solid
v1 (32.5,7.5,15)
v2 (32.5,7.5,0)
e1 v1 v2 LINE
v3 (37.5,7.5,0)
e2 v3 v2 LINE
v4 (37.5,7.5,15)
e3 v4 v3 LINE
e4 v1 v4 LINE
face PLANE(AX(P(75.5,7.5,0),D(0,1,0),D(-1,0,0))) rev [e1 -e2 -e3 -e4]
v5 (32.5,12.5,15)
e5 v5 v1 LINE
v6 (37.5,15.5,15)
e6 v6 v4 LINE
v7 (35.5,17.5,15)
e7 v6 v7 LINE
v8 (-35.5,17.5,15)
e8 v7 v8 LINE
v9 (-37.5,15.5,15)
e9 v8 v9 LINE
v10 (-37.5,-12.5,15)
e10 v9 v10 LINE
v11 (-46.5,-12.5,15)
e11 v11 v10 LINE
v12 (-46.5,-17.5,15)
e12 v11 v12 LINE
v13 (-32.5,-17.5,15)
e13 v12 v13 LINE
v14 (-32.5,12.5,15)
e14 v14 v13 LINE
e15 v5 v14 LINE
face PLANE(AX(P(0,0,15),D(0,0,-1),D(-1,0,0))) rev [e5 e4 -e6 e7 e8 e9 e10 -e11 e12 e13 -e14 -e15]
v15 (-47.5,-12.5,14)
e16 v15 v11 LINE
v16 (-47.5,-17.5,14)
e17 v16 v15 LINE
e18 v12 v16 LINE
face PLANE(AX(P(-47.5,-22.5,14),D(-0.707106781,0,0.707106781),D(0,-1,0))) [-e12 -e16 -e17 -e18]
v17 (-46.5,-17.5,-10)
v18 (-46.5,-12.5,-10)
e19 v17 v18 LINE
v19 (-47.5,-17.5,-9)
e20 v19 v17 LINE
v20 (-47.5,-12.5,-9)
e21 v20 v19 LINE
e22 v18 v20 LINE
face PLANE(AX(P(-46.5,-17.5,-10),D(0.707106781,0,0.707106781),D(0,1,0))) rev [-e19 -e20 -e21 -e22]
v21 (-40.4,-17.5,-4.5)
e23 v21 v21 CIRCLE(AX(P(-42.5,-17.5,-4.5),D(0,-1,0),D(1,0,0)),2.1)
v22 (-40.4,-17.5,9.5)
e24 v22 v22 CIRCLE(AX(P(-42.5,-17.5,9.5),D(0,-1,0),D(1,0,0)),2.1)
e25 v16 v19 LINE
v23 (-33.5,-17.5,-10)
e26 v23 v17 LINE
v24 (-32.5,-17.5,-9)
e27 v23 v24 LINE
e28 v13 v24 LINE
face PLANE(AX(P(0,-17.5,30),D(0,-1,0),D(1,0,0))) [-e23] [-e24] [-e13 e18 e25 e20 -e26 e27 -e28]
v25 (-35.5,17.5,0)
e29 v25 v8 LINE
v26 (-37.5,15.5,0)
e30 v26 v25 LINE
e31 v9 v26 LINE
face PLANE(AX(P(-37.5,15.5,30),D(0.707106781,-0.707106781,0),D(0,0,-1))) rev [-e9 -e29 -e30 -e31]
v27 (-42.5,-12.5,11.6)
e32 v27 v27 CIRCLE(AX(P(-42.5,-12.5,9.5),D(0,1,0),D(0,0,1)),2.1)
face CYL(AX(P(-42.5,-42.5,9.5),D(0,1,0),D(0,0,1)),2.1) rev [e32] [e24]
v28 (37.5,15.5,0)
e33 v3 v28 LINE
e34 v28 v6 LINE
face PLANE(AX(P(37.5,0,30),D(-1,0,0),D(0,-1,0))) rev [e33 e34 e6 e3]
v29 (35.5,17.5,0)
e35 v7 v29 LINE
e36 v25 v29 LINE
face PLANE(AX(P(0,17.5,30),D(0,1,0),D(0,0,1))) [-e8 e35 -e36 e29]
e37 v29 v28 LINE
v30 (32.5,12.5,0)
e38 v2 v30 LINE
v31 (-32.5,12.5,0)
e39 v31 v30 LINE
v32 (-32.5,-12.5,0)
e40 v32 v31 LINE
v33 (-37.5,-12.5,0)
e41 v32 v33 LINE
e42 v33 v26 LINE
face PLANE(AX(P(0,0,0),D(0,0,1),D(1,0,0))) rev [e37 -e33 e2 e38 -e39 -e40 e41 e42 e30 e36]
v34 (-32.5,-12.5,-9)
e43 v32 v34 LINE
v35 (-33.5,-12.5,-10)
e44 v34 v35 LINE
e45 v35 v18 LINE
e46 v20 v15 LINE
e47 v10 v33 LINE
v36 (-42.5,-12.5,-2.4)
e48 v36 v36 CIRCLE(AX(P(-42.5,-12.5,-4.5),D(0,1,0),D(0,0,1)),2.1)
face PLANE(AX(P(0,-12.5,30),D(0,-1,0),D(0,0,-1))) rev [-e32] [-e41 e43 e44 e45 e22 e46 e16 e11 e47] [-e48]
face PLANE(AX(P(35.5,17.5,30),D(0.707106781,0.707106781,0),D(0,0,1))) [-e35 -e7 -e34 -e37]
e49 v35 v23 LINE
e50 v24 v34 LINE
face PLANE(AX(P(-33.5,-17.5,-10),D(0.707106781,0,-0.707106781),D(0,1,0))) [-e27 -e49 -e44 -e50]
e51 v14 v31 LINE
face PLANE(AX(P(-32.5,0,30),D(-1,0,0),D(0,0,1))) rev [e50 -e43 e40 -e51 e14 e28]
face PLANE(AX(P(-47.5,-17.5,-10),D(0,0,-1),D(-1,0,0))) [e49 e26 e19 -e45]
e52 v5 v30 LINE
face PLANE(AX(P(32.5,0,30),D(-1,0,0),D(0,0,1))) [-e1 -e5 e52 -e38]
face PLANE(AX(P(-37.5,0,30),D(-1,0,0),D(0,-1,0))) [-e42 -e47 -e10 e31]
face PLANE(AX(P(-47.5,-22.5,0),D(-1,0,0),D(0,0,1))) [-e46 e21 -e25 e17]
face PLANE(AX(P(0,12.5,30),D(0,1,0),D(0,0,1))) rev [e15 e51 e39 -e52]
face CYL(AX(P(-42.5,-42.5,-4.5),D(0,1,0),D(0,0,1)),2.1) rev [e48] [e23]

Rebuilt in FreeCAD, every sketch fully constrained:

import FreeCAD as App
import Part
import Sketcher


def edges_at(feature, points):
    """Names of the edges that pass closest to the given points."""
    edges = feature.Shape.Edges
    near = lambda p: min(range(len(edges)), key=lambda i: edges[i].distToShape(Part.Vertex(*p))[0])
    return sorted({f"Edge{near(p) + 1}" for p in points})


def add_polygon(sketch, points):
    """Adds a closed chain of lines whose ends are joined by coincident constraints."""
    first, n = sketch.GeometryCount, len(points)
    for a, b in zip(points, points[1:] + points[:1]):
        sketch.addGeometry(Part.LineSegment(App.Vector(*a, 0), App.Vector(*b, 0)), False)
    for i in range(n):
        sketch.addConstraint(Sketcher.Constraint("Coincident", first + i, 2, first + (i + 1) % n, 1))

doc = App.newDocument("Part")
params = doc.addObject("Spreadsheet::Sheet", "Params")
for row, (alias, value) in enumerate([
    ("sketch1_width", "25 mm"),
    ("sketch1_width2", "65 mm"),
    ("sketch1_width3", "20 mm"),
    ("sketch1_height", "30 mm"),
    ("sketch1_height2", "5 mm"),
    ("pad1_length", "30 mm"),
    ("sketch2_width", "50 mm"),
    ("sketch2_height", "20 mm"),
    ("pocket1_length", "30 mm"),
    ("chamfer_size", "2 mm"),
    ("sketch3_diameter", "4.2 mm"),
    ("pocket2_length", "30 mm"),
    ("sketch4_width", "5 mm"),
    ("sketch4_height", "30 mm"),
    ("pad2_length", "5 mm"),
    ("pocket3_length", "15 mm"),
    ("sketch6_width", "20 mm"),
    ("sketch6_height", "15 mm"),
    ("sketch7_width", "71 mm"),
    ("sketch7_height", "15 mm"),
    ("pad4_length", "5 mm"),
    ("sketch8_width", "25 mm"),
    ("sketch8_height", "15 mm"),
    ("pocket4_length", "38 mm"),
    ("pocket4_length2", "27 mm"),
    ("sketch9_diameter", "4.2 mm"),
    ("pocket5_length", "27 mm"),
    ("sketch10_diameter", "4.2 mm"),
    ("pad5_length", "5 mm"),
    ("sketch11_diameter", "4.2 mm"),
    ("pocket6_length", "5 mm"),
    ("sketch12_width", "5 mm"),
    ("sketch12_height", "15 mm"),
    ("pocket7_length", "10 mm"),
    ("sketch13_width", "5 mm"),
    ("sketch13_height", "15 mm"),
    ("pocket8_length", "10 mm"),
    ("sketch14_width", "10 mm"),
    ("sketch14_height", "25 mm"),
    ("pad6_length", "5 mm"),
    ("sketch15_diameter", "4.2 mm"),
    ("pocket9_length", "30 mm"),
    ("sketch16_width", "5 mm"),
    ("sketch16_height", "10 mm"),
    ("pad7_length", "5 mm"),
    ("chamfer2_size", "1 mm"),
    ("chamfer3_size", "1 mm"),
], start=1):
    params.set(f"A{row}", alias)
    params.set(f"B{row}", "=" + value)
    params.setAlias(f"B{row}", alias)

body = doc.addObject("PartDesign::Body", "Body")

sketch1 = doc.addObject("Sketcher::SketchObject", "Sketch")
body.addObject(sketch1)
sketch1.AttachmentSupport = (doc.XY_Plane, [""])
sketch1.MapMode = "FlatFace"
add_polygon(sketch1, [(-57.5, -17.5), (-32.5, -17.5), (-32.5, 12.5), (32.5, 12.5), (32.5, -17.5), (57.5, -17.5), (57.5, -12.5), (37.5, -12.5), (37.5, 17.5), (-37.5, 17.5), (-37.5, -12.5), (-57.5, -12.5)])
sketch1.addConstraint([
    Sketcher.Constraint("Horizontal", 0),
    Sketcher.Constraint("Vertical", 1),
    Sketcher.Constraint("Horizontal", 2),
    Sketcher.Constraint("Vertical", 3),
    Sketcher.Constraint("Horizontal", 4),
    Sketcher.Constraint("Vertical", 5),
    Sketcher.Constraint("Horizontal", 6),
    Sketcher.Constraint("Vertical", 7),
    Sketcher.Constraint("Horizontal", 8),
    Sketcher.Constraint("Vertical", 9),
    Sketcher.Constraint("Horizontal", 10),
    Sketcher.Constraint("Vertical", 11),
    Sketcher.Constraint("Symmetric", 0, 2, 3, 2, -2),
    Sketcher.Constraint("Symmetric", 6, 2, 9, 2, -2),
    Sketcher.Constraint("Equal", 0, 4),
    Sketcher.Constraint("Equal", 3, 7),
    Sketcher.Constraint("DistanceX", 0, 1, 0, 2, 25.0),
    Sketcher.Constraint("DistanceX", 2, 1, 2, 2, 65.0),
    Sketcher.Constraint("DistanceX", 6, 2, 6, 1, 20.0),
    Sketcher.Constraint("DistanceY", 1, 1, 1, 2, 30.0),
    Sketcher.Constraint("DistanceY", 5, 1, 5, 2, 5.0),
    Sketcher.Constraint("DistanceY", 0, 2, -1, 1, 17.5),
])
sketch1.setExpression("Constraints[28]", "Params.sketch1_width")
sketch1.setExpression("Constraints[29]", "Params.sketch1_width2")
sketch1.setExpression("Constraints[30]", "Params.sketch1_width3")
sketch1.setExpression("Constraints[31]", "Params.sketch1_height")
sketch1.setExpression("Constraints[32]", "Params.sketch1_height2")
pad1 = doc.addObject("PartDesign::Pad", "Pad")
body.addObject(pad1)
pad1.Profile = sketch1
pad1.setExpression("Length", "Params.pad1_length")

sketch2 = doc.addObject("Sketcher::SketchObject", "Sketch001")
body.addObject(sketch2)
sketch2.AttachmentSupport = (doc.XZ_Plane, [""])
sketch2.MapMode = "FlatFace"
sketch2.AttachmentOffset = App.Placement(App.Vector(0, 0, -17.5), App.Rotation())
add_polygon(sketch2, [(-25, 5), (-25, 25), (25, 25), (25, 5)])
sketch2.addConstraint([
    Sketcher.Constraint("Vertical", 0),
    Sketcher.Constraint("Horizontal", 1),
    Sketcher.Constraint("Vertical", 2),
    Sketcher.Constraint("Horizontal", 3),
    Sketcher.Constraint("DistanceX", 1, 1, 1, 2, 50.0),
    Sketcher.Constraint("DistanceY", 0, 1, 0, 2, 20.0),
    Sketcher.Constraint("DistanceX", 0, 2, -1, 1, 25.0),
    Sketcher.Constraint("DistanceY", -1, 1, 0, 2, 25.0),
])
sketch2.setExpression("Constraints[8]", "Params.sketch2_width")
sketch2.setExpression("Constraints[9]", "Params.sketch2_height")
pocket1 = doc.addObject("PartDesign::Pocket", "Pocket")
body.addObject(pocket1)
pocket1.Profile = sketch2
pocket1.setExpression("Length", "Params.pocket1_length")
pocket1.Reversed = True
doc.recompute()

chamfer = doc.addObject("PartDesign::Chamfer", "Chamfer")
body.addObject(chamfer)
chamfer.Base = (pocket1, edges_at(pocket1, [(-37.5, 17.5, 15), (37.5, 17.5, 15)]))
chamfer.setExpression("Size", "Params.chamfer_size")

sketch3 = doc.addObject("Sketcher::SketchObject", "Sketch002")
body.addObject(sketch3)
sketch3.AttachmentSupport = (doc.XZ_Plane, [""])
sketch3.MapMode = "FlatFace"
sketch3.AttachmentOffset = App.Placement(App.Vector(0, 0, 12.5), App.Rotation())
sketch3.addGeometry([
    Part.Circle(App.Vector(-47.5, 15, 0), App.Vector(0, 0, 1), 2.1),
    Part.Circle(App.Vector(47.5, 15, 0), App.Vector(0, 0, 1), 2.1),
], False)
sketch3.addConstraint([
    Sketcher.Constraint("Equal", 0, 1),
    Sketcher.Constraint("Symmetric", 0, 3, 1, 3, -2),
    Sketcher.Constraint("Diameter", 0, 4.2),
    Sketcher.Constraint("DistanceY", -1, 1, 0, 3, 15.0),
    Sketcher.Constraint("DistanceX", 0, 3, 1, 3, 95.0),
])
sketch3.setExpression("Constraints[2]", "Params.sketch3_diameter")
pocket2 = doc.addObject("PartDesign::Pocket", "Pocket001")
body.addObject(pocket2)
pocket2.Profile = sketch3
pocket2.setExpression("Length", "Params.pocket2_length")
pocket2.Reversed = True

sketch4 = doc.addObject("Sketcher::SketchObject", "Sketch003")
body.addObject(sketch4)
sketch4.AttachmentSupport = (doc.XZ_Plane, [""])
sketch4.MapMode = "FlatFace"
sketch4.AttachmentOffset = App.Placement(App.Vector(0, 0, -17.5), App.Rotation())
add_polygon(sketch4, [(-2.5, 0), (-2.5, 30), (2.5, 30), (2.5, 0)])
sketch4.addConstraint([
    Sketcher.Constraint("Vertical", 0),
    Sketcher.Constraint("Horizontal", 1),
    Sketcher.Constraint("Vertical", 2),
    Sketcher.Constraint("Horizontal", 3),
    Sketcher.Constraint("Symmetric", 2, 2, 3, 2, -1, 1),
    Sketcher.Constraint("DistanceX", 1, 1, 1, 2, 5.0),
    Sketcher.Constraint("DistanceY", 0, 1, 0, 2, 30.0),
])
sketch4.setExpression("Constraints[9]", "Params.sketch4_width")
sketch4.setExpression("Constraints[10]", "Params.sketch4_height")
pad2 = doc.addObject("PartDesign::Pad", "Pad001")
body.addObject(pad2)
pad2.Profile = sketch4
pad2.setExpression("Length", "Params.pad2_length")

sketch5 = doc.addObject("Sketcher::SketchObject", "Sketch004")
body.addObject(sketch5)
sketch5.AttachmentSupport = (doc.XY_Plane, [""])
sketch5.MapMode = "FlatFace"
sketch5.AttachmentOffset = App.Placement(App.Vector(0, 0, 30), App.Rotation())
add_polygon(sketch5, [(-63.094721, 24.823122), (-63.094721, -24.823122), (63.094721, -24.823122), (63.094721, 24.823122)])
sketch5.addConstraint([
    Sketcher.Constraint("Vertical", 0),
    Sketcher.Constraint("Horizontal", 1),
    Sketcher.Constraint("Vertical", 2),
    Sketcher.Constraint("Horizontal", 3),
    Sketcher.Constraint("Symmetric", 0, 2, 2, 2, -1, 1),
    Sketcher.Constraint("DistanceX", 1, 1, 1, 2, 126.189443),
    Sketcher.Constraint("DistanceY", 0, 2, 0, 1, 49.646245),
])
pocket3 = doc.addObject("PartDesign::Pocket", "Pocket002")
body.addObject(pocket3)
pocket3.Profile = sketch5
pocket3.setExpression("Length", "Params.pocket3_length")

sketch6 = doc.addObject("Sketcher::SketchObject", "Sketch005")
body.addObject(sketch6)
sketch6.AttachmentSupport = (doc.XZ_Plane, [""])
sketch6.MapMode = "FlatFace"
sketch6.AttachmentOffset = App.Placement(App.Vector(0, 0, 12.5), App.Rotation())
add_polygon(sketch6, [(-57.5, 0), (-57.5, 15), (-37.5, 15), (-37.5, 0)])
sketch6.addConstraint([
    Sketcher.Constraint("Vertical", 0),
    Sketcher.Constraint("Horizontal", 1),
    Sketcher.Constraint("Vertical", 2),
    Sketcher.Constraint("Horizontal", 3),
    Sketcher.Constraint("PointOnObject", 2, 2, -1),
    Sketcher.Constraint("DistanceX", 1, 1, 1, 2, 20.0),
    Sketcher.Constraint("DistanceY", 0, 1, 0, 2, 15.0),
    Sketcher.Constraint("DistanceX", 0, 2, -1, 1, 57.5),
])
sketch6.setExpression("Constraints[9]", "Params.sketch6_width")
sketch6.setExpression("Constraints[10]", "Params.sketch6_height")
pad3 = doc.addObject("PartDesign::Pad", "Pad002")
body.addObject(pad3)
pad3.Profile = sketch6
pad3.Type = "UpToLast"

sketch7 = doc.addObject("Sketcher::SketchObject", "Sketch006")
body.addObject(sketch7)
sketch7.AttachmentSupport = (doc.XZ_Plane, [""])
sketch7.MapMode = "FlatFace"
sketch7.AttachmentOffset = App.Placement(App.Vector(0, 0, -17.5), App.Rotation())
add_polygon(sketch7, [(-35.5, 0), (-35.5, 15), (35.5, 15), (35.5, 0)])
sketch7.addConstraint([
    Sketcher.Constraint("Vertical", 0),
    Sketcher.Constraint("Horizontal", 1),
    Sketcher.Constraint("Vertical", 2),
    Sketcher.Constraint("Horizontal", 3),
    Sketcher.Constraint("Symmetric", 2, 2, 3, 2, -1, 1),
    Sketcher.Constraint("DistanceX", 1, 1, 1, 2, 71.0),
    Sketcher.Constraint("DistanceY", 0, 1, 0, 2, 15.0),
])
sketch7.setExpression("Constraints[9]", "Params.sketch7_width")
sketch7.setExpression("Constraints[10]", "Params.sketch7_height")
pad4 = doc.addObject("PartDesign::Pad", "Pad003")
body.addObject(pad4)
pad4.Profile = sketch7
pad4.setExpression("Length", "Params.pad4_length")

sketch8 = doc.addObject("Sketcher::SketchObject", "Sketch007")
body.addObject(sketch8)
sketch8.AttachmentSupport = (doc.YZ_Plane, [""])
sketch8.MapMode = "FlatFace"
sketch8.AttachmentOffset = App.Placement(App.Vector(0, 0, 37.5), App.Rotation())
add_polygon(sketch8, [(7.5, 15), (-17.5, 15), (-17.5, 0), (7.5, 0)])
sketch8.addConstraint([
    Sketcher.Constraint("Horizontal", 0),
    Sketcher.Constraint("Vertical", 1),
    Sketcher.Constraint("Horizontal", 2),
    Sketcher.Constraint("Vertical", 3),
    Sketcher.Constraint("PointOnObject", 1, 2, -1),
    Sketcher.Constraint("DistanceX", 0, 2, 0, 1, 25.0),
    Sketcher.Constraint("DistanceY", 1, 2, 1, 1, 15.0),
    Sketcher.Constraint("DistanceX", 0, 2, -1, 1, 17.5),
])
sketch8.setExpression("Constraints[9]", "Params.sketch8_width")
sketch8.setExpression("Constraints[10]", "Params.sketch8_height")
pocket4 = doc.addObject("PartDesign::Pocket", "Pocket003")
body.addObject(pocket4)
pocket4.Profile = sketch8
pocket4.Type = "TwoLengths"
pocket4.setExpression("Length", "Params.pocket4_length")
pocket4.setExpression("Length2", "Params.pocket4_length2")
pocket4.Reversed = True

sketch9 = doc.addObject("Sketcher::SketchObject", "Sketch008")
body.addObject(sketch9)
sketch9.AttachmentSupport = (doc.XZ_Plane, [""])
sketch9.MapMode = "FlatFace"
sketch9.AttachmentOffset = App.Placement(App.Vector(0, 0, 12.5), App.Rotation())
sketch9.addGeometry(Part.Circle(App.Vector(-47.5, 7.5, 0), App.Vector(0, 0, 1), 2.1), False)
sketch9.addConstraint([
    Sketcher.Constraint("Diameter", 0, 4.2),
    Sketcher.Constraint("DistanceX", 0, 3, -1, 1, 47.5),
    Sketcher.Constraint("DistanceY", -1, 1, 0, 3, 7.5),
])
sketch9.setExpression("Constraints[0]", "Params.sketch9_diameter")
pocket5 = doc.addObject("PartDesign::Pocket", "Pocket004")
body.addObject(pocket5)
pocket5.Profile = sketch9
pocket5.setExpression("Length", "Params.pocket5_length")
pocket5.Reversed = True

sketch10 = doc.addObject("Sketcher::SketchObject", "Sketch009")
body.addObject(sketch10)
sketch10.AttachmentSupport = (doc.XZ_Plane, [""])
sketch10.MapMode = "FlatFace"
sketch10.AttachmentOffset = App.Placement(App.Vector(0, 0, 17.5), App.Rotation())
sketch10.addGeometry(Part.Circle(App.Vector(-47.5, 7.5, 0), App.Vector(0, 0, 1), 2.1), False)
sketch10.addConstraint([
    Sketcher.Constraint("Diameter", 0, 4.2),
    Sketcher.Constraint("DistanceX", 0, 3, -1, 1, 47.5),
    Sketcher.Constraint("DistanceY", -1, 1, 0, 3, 7.5),
])
sketch10.setExpression("Constraints[0]", "Params.sketch10_diameter")
pad5 = doc.addObject("PartDesign::Pad", "Pad004")
body.addObject(pad5)
pad5.Profile = sketch10
pad5.setExpression("Length", "Params.pad5_length")
pad5.Reversed = True

sketch11 = doc.addObject("Sketcher::SketchObject", "Sketch010")
body.addObject(sketch11)
sketch11.AttachmentSupport = (doc.XZ_Plane, [""])
sketch11.MapMode = "FlatFace"
sketch11.AttachmentOffset = App.Placement(App.Vector(0, 0, 17.5), App.Rotation())
sketch11.addGeometry([
    Part.Circle(App.Vector(-42.5, 11, 0), App.Vector(0, 0, 1), 2.1),
    Part.Circle(App.Vector(-42.5, 4, 0), App.Vector(0, 0, 1), 2.1),
], False)
sketch11.addConstraint([
    Sketcher.Constraint("Equal", 0, 1),
    Sketcher.Constraint("Vertical", 0, 3, 1, 3),
    Sketcher.Constraint("Diameter", 0, 4.2),
    Sketcher.Constraint("DistanceY", -1, 1, 0, 3, 11.0),
    Sketcher.Constraint("DistanceY", -1, 1, 1, 3, 4.0),
    Sketcher.Constraint("DistanceX", 0, 3, -1, 1, 42.5),
])
sketch11.setExpression("Constraints[2]", "Params.sketch11_diameter")
pocket6 = doc.addObject("PartDesign::Pocket", "Pocket005")
body.addObject(pocket6)
pocket6.Profile = sketch11
pocket6.setExpression("Length", "Params.pocket6_length")

sketch12 = doc.addObject("Sketcher::SketchObject", "Sketch011")
body.addObject(sketch12)
sketch12.AttachmentSupport = (doc.XZ_Plane, [""])
sketch12.MapMode = "FlatFace"
sketch12.AttachmentOffset = App.Placement(App.Vector(0, 0, 17.5), App.Rotation())
add_polygon(sketch12, [(-52.5, 0), (-52.5, 15), (-57.5, 15), (-57.5, 0)])
sketch12.addConstraint([
    Sketcher.Constraint("Vertical", 0),
    Sketcher.Constraint("Horizontal", 1),
    Sketcher.Constraint("Vertical", 2),
    Sketcher.Constraint("Horizontal", 3),
    Sketcher.Constraint("PointOnObject", 2, 2, -1),
    Sketcher.Constraint("DistanceX", 1, 2, 1, 1, 5.0),
    Sketcher.Constraint("DistanceY", 0, 1, 0, 2, 15.0),
    Sketcher.Constraint("DistanceX", 0, 2, -1, 1, 52.5),
])
sketch12.setExpression("Constraints[9]", "Params.sketch12_width")
sketch12.setExpression("Constraints[10]", "Params.sketch12_height")
pocket7 = doc.addObject("PartDesign::Pocket", "Pocket006")
body.addObject(pocket7)
pocket7.Profile = sketch12
pocket7.setExpression("Length", "Params.pocket7_length")

sketch13 = doc.addObject("Sketcher::SketchObject", "Sketch012")
body.addObject(sketch13)
sketch13.AttachmentSupport = (doc.XZ_Plane, [""])
sketch13.MapMode = "FlatFace"
sketch13.AttachmentOffset = App.Placement(App.Vector(0, 0, 12.5), App.Rotation())
add_polygon(sketch13, [(-52.5, 0), (-52.5, 15), (-47.5, 15), (-47.5, 0)])
sketch13.addConstraint([
    Sketcher.Constraint("Vertical", 0),
    Sketcher.Constraint("Horizontal", 1),
    Sketcher.Constraint("Vertical", 2),
    Sketcher.Constraint("Horizontal", 3),
    Sketcher.Constraint("PointOnObject", 2, 2, -1),
    Sketcher.Constraint("DistanceX", 1, 1, 1, 2, 5.0),
    Sketcher.Constraint("DistanceY", 0, 1, 0, 2, 15.0),
    Sketcher.Constraint("DistanceX", 0, 2, -1, 1, 52.5),
])
sketch13.setExpression("Constraints[9]", "Params.sketch13_width")
sketch13.setExpression("Constraints[10]", "Params.sketch13_height")
pocket8 = doc.addObject("PartDesign::Pocket", "Pocket007")
body.addObject(pocket8)
pocket8.Profile = sketch13
pocket8.setExpression("Length", "Params.pocket8_length")
pocket8.Reversed = True

sketch14 = doc.addObject("Sketcher::SketchObject", "Sketch013")
body.addObject(sketch14)
sketch14.AttachmentSupport = (doc.XZ_Plane, [""])
sketch14.MapMode = "FlatFace"
sketch14.AttachmentOffset = App.Placement(App.Vector(0, 0, 12.5), App.Rotation())
add_polygon(sketch14, [(-47.5, -10), (-47.5, 15), (-37.5, 15), (-37.5, -10)])
sketch14.addConstraint([
    Sketcher.Constraint("Vertical", 0),
    Sketcher.Constraint("Horizontal", 1),
    Sketcher.Constraint("Vertical", 2),
    Sketcher.Constraint("Horizontal", 3),
    Sketcher.Constraint("DistanceX", 1, 1, 1, 2, 10.0),
    Sketcher.Constraint("DistanceY", 0, 1, 0, 2, 25.0),
    Sketcher.Constraint("DistanceY", -1, 1, 0, 2, 15.0),
    Sketcher.Constraint("DistanceX", 0, 2, -1, 1, 47.5),
])
sketch14.setExpression("Constraints[8]", "Params.sketch14_width")
sketch14.setExpression("Constraints[9]", "Params.sketch14_height")
pad6 = doc.addObject("PartDesign::Pad", "Pad005")
body.addObject(pad6)
pad6.Profile = sketch14
pad6.setExpression("Length", "Params.pad6_length")

sketch15 = doc.addObject("Sketcher::SketchObject", "Sketch014")
body.addObject(sketch15)
sketch15.AttachmentSupport = (doc.XZ_Plane, [""])
sketch15.MapMode = "FlatFace"
sketch15.AttachmentOffset = App.Placement(App.Vector(0, 0, 12.5), App.Rotation())
sketch15.addGeometry([
    Part.Circle(App.Vector(-42.5, -4.5, 0), App.Vector(0, 0, 1), 2.1),
    Part.Circle(App.Vector(-42.5, 9.5, 0), App.Vector(0, 0, 1), 2.1),
], False)
sketch15.addConstraint([
    Sketcher.Constraint("Equal", 0, 1),
    Sketcher.Constraint("Vertical", 0, 3, 1, 3),
    Sketcher.Constraint("Diameter", 0, 4.2),
    Sketcher.Constraint("DistanceY", 0, 3, 1, 3, 14.0),
    Sketcher.Constraint("DistanceX", 0, 3, -1, 1, 42.5),
    Sketcher.Constraint("DistanceY", 0, 3, -1, 1, 4.5),
])
sketch15.setExpression("Constraints[2]", "Params.sketch15_diameter")
pocket9 = doc.addObject("PartDesign::Pocket", "Pocket008")
body.addObject(pocket9)
pocket9.Profile = sketch15
pocket9.setExpression("Length", "Params.pocket9_length")
pocket9.Reversed = True

sketch16 = doc.addObject("Sketcher::SketchObject", "Sketch015")
body.addObject(sketch16)
sketch16.AttachmentSupport = (doc.YZ_Plane, [""])
sketch16.MapMode = "FlatFace"
sketch16.AttachmentOffset = App.Placement(App.Vector(0, 0, -37.5), App.Rotation())
add_polygon(sketch16, [(-12.5, 0), (-17.5, 0), (-17.5, -10), (-12.5, -10)])
sketch16.addConstraint([
    Sketcher.Constraint("Horizontal", 0),
    Sketcher.Constraint("Vertical", 1),
    Sketcher.Constraint("Horizontal", 2),
    Sketcher.Constraint("Vertical", 3),
    Sketcher.Constraint("PointOnObject", 0, 2, -1),
    Sketcher.Constraint("DistanceX", 0, 2, 0, 1, 5.0),
    Sketcher.Constraint("DistanceY", 1, 2, 1, 1, 10.0),
    Sketcher.Constraint("DistanceX", 0, 2, -1, 1, 17.5),
])
sketch16.setExpression("Constraints[9]", "Params.sketch16_width")
sketch16.setExpression("Constraints[10]", "Params.sketch16_height")
pad7 = doc.addObject("PartDesign::Pad", "Pad006")
body.addObject(pad7)
pad7.Profile = sketch16
pad7.setExpression("Length", "Params.pad7_length")
doc.recompute()

chamfer2 = doc.addObject("PartDesign::Chamfer", "Chamfer001")
body.addObject(chamfer2)
chamfer2.Base = (pad7, edges_at(pad7, [(-47.5, -15, 15), (-47.5, -15, -10)]))
chamfer2.setExpression("Size", "Params.chamfer2_size")
doc.recompute()

chamfer3 = doc.addObject("PartDesign::Chamfer", "Chamfer002")
body.addObject(chamfer3)
chamfer3.Base = (chamfer2, edges_at(chamfer2, [(-32.5, -15, -10)]))
chamfer3.setExpression("Size", "Params.chamfer3_size")

doc.recompute()
